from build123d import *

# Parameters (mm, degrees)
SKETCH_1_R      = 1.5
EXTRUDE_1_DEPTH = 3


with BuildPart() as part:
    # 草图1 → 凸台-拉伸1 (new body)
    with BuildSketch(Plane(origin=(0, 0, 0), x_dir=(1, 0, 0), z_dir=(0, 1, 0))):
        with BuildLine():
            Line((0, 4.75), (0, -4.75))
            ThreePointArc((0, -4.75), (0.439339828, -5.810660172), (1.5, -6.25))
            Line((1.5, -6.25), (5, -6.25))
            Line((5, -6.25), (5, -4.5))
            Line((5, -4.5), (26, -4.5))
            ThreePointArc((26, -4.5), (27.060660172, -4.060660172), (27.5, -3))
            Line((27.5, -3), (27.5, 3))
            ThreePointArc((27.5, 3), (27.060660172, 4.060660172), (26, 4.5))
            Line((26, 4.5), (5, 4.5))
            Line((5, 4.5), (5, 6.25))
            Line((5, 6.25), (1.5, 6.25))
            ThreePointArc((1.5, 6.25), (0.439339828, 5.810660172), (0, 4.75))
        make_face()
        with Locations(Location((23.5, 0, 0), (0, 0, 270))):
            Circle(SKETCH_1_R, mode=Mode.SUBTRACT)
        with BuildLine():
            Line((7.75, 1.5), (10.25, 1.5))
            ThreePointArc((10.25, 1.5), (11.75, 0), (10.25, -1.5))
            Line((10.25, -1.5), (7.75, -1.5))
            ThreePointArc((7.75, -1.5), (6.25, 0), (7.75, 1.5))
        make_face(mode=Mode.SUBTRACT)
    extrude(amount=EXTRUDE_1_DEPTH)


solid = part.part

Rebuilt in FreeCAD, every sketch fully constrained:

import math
import FreeCAD as App
import Part
import Sketcher

V = App.Vector

doc = App.newDocument("Part")
body = doc.addObject("PartDesign::Body", "Body")

sketch1 = doc.addObject("Sketcher::SketchObject", "Sketch")
body.addObject(sketch1)
sketch1.AttachmentSupport = (doc.XZ_Plane, [""])
sketch1.MapMode = "FlatFace"
sketch1.addGeometry(Part.LineSegment(V(0, -4.8, 0), V(0, 4.8, 0)), False)
sketch1.addGeometry(Part.ArcOfCircle(Part.Circle(V(1.5, 4.8, 0), V(0, 0, 1), 1.5), math.radians(90), math.radians(180)), False)
sketch1.addGeometry(Part.LineSegment(V(1.5, 6.2, 0), V(5, 6.2, 0)), False)
sketch1.addGeometry(Part.LineSegment(V(5, 6.2, 0), V(5, 4.5, 0)), False)
sketch1.addGeometry(Part.LineSegment(V(5, 4.5, 0), V(26, 4.5, 0)), False)
sketch1.addGeometry(Part.ArcOfCircle(Part.Circle(V(26, 3, 0), V(0, 0, 1), 1.5), math.radians(0), math.radians(90)), False)
sketch1.addGeometry(Part.LineSegment(V(27.5, 3, 0), V(27.5, -3, 0)), False)
sketch1.addGeometry(Part.ArcOfCircle(Part.Circle(V(26, -3, 0), V(0, 0, 1), 1.5), math.radians(-90), math.radians(0)), False)
sketch1.addGeometry(Part.LineSegment(V(26, -4.5, 0), V(5, -4.5, 0)), False)
sketch1.addGeometry(Part.LineSegment(V(5, -4.5, 0), V(5, -6.2, 0)), False)
sketch1.addGeometry(Part.LineSegment(V(5, -6.2, 0), V(1.5, -6.2, 0)), False)
sketch1.addGeometry(Part.ArcOfCircle(Part.Circle(V(1.5, -4.8, 0), V(0, 0, 1), 1.5), math.radians(180), math.radians(270)), False)
sketch1.addGeometry(Part.ArcOfCircle(Part.Circle(V(7.8, 0, 0), V(0, 0, 1), 1.5), math.radians(90), math.radians(270)), False)
sketch1.addGeometry(Part.LineSegment(V(7.8, -1.5, 0), V(10.2, -1.5, 0)), False)
sketch1.addGeometry(Part.ArcOfCircle(Part.Circle(V(10.2, 0, 0), V(0, 0, 1), 1.5), math.radians(-90), math.radians(90)), False)
sketch1.addGeometry(Part.LineSegment(V(10.2, 1.5, 0), V(7.8, 1.5, 0)), False)
sketch1.addGeometry(Part.Circle(V(23.5, 0, 0), V(0, 0, 1), 1.5), False)
sketch1.addConstraint(Sketcher.Constraint("Tangent", 0, 2, 1, 2))
sketch1.addConstraint(Sketcher.Constraint("Tangent", 1, 1, 2, 1))
sketch1.addConstraint(Sketcher.Constraint("Coincident", 2, 2, 3, 1))
sketch1.addConstraint(Sketcher.Constraint("Coincident", 3, 2, 4, 1))
sketch1.addConstraint(Sketcher.Constraint("Tangent", 4, 2, 5, 2))
sketch1.addConstraint(Sketcher.Constraint("Tangent", 5, 1, 6, 1))
sketch1.addConstraint(Sketcher.Constraint("Tangent", 6, 2, 7, 2))
sketch1.addConstraint(Sketcher.Constraint("Tangent", 7, 1, 8, 1))
sketch1.addConstraint(Sketcher.Constraint("Coincident", 8, 2, 9, 1))
sketch1.addConstraint(Sketcher.Constraint("Coincident", 9, 2, 10, 1))
sketch1.addConstraint(Sketcher.Constraint("Tangent", 10, 2, 11, 2))
sketch1.addConstraint(Sketcher.Constraint("Tangent", 11, 1, 0, 1))
sketch1.addConstraint(Sketcher.Constraint("Tangent", 12, 2, 13, 1))
sketch1.addConstraint(Sketcher.Constraint("Tangent", 13, 2, 14, 1))
sketch1.addConstraint(Sketcher.Constraint("Tangent", 14, 2, 15, 1))
sketch1.addConstraint(Sketcher.Constraint("Tangent", 15, 2, 12, 1))
sketch1.addConstraint(Sketcher.Constraint("Vertical", 0))
sketch1.addConstraint(Sketcher.Constraint("Horizontal", 2))
sketch1.addConstraint(Sketcher.Constraint("Vertical", 3))
sketch1.addConstraint(Sketcher.Constraint("Horizontal", 4))
sketch1.addConstraint(Sketcher.Constraint("Vertical", 6))
sketch1.addConstraint(Sketcher.Constraint("Horizontal", 8))
sketch1.addConstraint(Sketcher.Constraint("Vertical", 9))
sketch1.addConstraint(Sketcher.Constraint("Horizontal", 10))
sketch1.addConstraint(Sketcher.Constraint("Horizontal", 13))
sketch1.addConstraint(Sketcher.Constraint("Horizontal", 15))
sketch1.addConstraint(Sketcher.Constraint("Equal", 1, 5))
sketch1.addConstraint(Sketcher.Constraint("Equal", 5, 7))
sketch1.addConstraint(Sketcher.Constraint("Equal", 7, 11))
sketch1.addConstraint(Sketcher.Constraint("Equal", 11, 12))
sketch1.addConstraint(Sketcher.Constraint("Equal", 14, 16))
sketch1.addConstraint(Sketcher.Constraint("Symmetric", 0, 2, 11, 1, -1, 1))
sketch1.addConstraint(Sketcher.Constraint("Symmetric", 3, 2, 8, 2, -1))
sketch1.addConstraint(Sketcher.Constraint("PointOnObject", 12, 3, -1))
sketch1.addConstraint(Sketcher.Constraint("PointOnObject", 16, 3, -1))
sketch1.addConstraint(Sketcher.Constraint("Diameter", 16, 3.0))
sketch1.addConstraint(Sketcher.Constraint("DistanceX", 4, 1, 4, 2, 21.0))
sketch1.addConstraint(Sketcher.Constraint("DistanceY", 6, 2, 6, 1, 6.0))
sketch1.addConstraint(Sketcher.Constraint("DistanceX", 2, 1, 2, 2, 3.5))
sketch1.addConstraint(Sketcher.Constraint("DistanceX", 13, 1, 13, 2, 2.5))
sketch1.addConstraint(Sketcher.Constraint("DistanceY", 0, 1, 0, 2, 9.5))
sketch1.addConstraint(Sketcher.Constraint("DistanceX", 1, 3, 16, 3, 22.0))
sketch1.addConstraint(Sketcher.Constraint("DistanceX", -1, 1, 12, 3, 7.75))
pad1 = doc.addObject("PartDesign::Pad", "Pad")
body.addObject(pad1)
pad1.Profile = sketch1
pad1.Length = 3
pad1.Reversed = True

doc.recompute()
